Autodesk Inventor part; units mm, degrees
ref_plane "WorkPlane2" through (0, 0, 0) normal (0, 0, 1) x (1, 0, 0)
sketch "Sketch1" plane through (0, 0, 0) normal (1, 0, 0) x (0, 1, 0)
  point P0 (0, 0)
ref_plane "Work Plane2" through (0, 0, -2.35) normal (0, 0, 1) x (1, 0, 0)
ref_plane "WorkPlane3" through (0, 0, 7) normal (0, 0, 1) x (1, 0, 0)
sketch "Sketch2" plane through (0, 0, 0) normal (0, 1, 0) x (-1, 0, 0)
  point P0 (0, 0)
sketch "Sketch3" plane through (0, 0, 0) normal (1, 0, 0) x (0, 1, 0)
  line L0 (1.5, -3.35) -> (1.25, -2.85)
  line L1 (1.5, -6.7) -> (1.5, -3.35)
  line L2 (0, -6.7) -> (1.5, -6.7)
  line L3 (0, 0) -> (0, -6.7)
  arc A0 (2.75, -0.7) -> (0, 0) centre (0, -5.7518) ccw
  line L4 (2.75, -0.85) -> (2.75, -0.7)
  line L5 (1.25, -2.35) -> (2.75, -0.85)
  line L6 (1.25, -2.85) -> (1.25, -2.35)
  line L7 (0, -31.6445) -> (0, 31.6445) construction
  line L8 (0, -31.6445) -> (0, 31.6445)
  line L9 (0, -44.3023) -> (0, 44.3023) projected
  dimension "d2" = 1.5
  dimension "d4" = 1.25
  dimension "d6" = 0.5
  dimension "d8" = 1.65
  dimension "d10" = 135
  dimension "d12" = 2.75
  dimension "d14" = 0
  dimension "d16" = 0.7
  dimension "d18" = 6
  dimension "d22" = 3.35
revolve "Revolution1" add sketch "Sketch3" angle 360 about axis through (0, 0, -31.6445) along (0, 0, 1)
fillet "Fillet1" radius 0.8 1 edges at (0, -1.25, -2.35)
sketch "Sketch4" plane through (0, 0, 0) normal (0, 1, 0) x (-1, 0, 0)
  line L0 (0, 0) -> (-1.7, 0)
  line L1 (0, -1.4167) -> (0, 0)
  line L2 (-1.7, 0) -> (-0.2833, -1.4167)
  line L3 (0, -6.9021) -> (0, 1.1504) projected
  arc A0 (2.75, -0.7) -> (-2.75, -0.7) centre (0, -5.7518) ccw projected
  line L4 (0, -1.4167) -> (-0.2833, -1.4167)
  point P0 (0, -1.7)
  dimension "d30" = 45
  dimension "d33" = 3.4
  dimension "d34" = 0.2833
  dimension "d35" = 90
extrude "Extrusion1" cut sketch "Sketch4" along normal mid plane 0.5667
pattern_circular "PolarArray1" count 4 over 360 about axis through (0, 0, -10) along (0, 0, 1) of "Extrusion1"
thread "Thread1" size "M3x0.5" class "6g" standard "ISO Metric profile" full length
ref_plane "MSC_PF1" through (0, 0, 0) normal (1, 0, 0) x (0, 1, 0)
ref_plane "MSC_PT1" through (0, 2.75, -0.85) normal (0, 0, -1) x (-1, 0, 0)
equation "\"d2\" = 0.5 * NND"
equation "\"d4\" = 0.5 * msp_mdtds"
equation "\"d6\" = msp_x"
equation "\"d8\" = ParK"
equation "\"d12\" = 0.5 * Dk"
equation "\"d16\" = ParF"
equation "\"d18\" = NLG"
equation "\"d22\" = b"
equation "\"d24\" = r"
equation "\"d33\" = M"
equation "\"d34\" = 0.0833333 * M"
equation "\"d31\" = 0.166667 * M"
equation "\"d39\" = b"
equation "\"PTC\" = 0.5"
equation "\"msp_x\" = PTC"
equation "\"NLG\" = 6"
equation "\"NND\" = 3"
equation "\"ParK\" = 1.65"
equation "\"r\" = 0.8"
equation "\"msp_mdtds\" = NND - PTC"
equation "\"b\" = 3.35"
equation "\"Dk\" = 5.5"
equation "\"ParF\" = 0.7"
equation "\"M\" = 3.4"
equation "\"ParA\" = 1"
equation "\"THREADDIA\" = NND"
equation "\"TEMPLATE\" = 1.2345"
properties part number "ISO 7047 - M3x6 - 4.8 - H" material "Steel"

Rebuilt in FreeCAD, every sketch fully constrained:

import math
import FreeCAD as App
import Part
import Sketcher
Q = App.Units.Quantity


def edges_at(feature, points):
    """Names of the edges that pass closest to the given points."""
    edges = feature.Shape.Edges
    near = lambda p: min(range(len(edges)), key=lambda i: edges[i].distToShape(Part.Vertex(*p))[0])
    return sorted({f"Edge{near(p) + 1}" for p in points})

doc = App.newDocument("Part")
body = doc.addObject("PartDesign::Body", "Body")

sketch1 = doc.addObject("Sketcher::SketchObject", "Sketch")
body.addObject(sketch1)
sketch1.AttachmentSupport = (doc.YZ_Plane, [""])
sketch1.MapMode = "FlatFace"
sketch1.addGeometry(Part.LineSegment(App.Vector(1.5, -6.7, 0), App.Vector(1.5, -3.35, 0)), False)
sketch1.addGeometry(Part.LineSegment(App.Vector(1.5, -3.35, 0), App.Vector(1.25, -2.85, 0)), False)
sketch1.addGeometry(Part.LineSegment(App.Vector(1.25, -2.85, 0), App.Vector(1.25, -2.35, 0)), False)
sketch1.addGeometry(Part.LineSegment(App.Vector(1.25, -2.35, 0), App.Vector(2.75, -0.85, 0)), False)
sketch1.addGeometry(Part.LineSegment(App.Vector(2.75, -0.85, 0), App.Vector(2.75, -0.7, 0)), False)
sketch1.addGeometry(Part.ArcOfCircle(Part.Circle(App.Vector(0, -5.7518, 0), App.Vector(0, 0, 1), 5.751798), math.radians(61.437877), math.radians(90)), False)
sketch1.addGeometry(Part.LineSegment(App.Vector(0, 0, 0), App.Vector(0, -6.7, 0)), False)
sketch1.addGeometry(Part.LineSegment(App.Vector(0, -6.7, 0), App.Vector(1.5, -6.7, 0)), False)
sketch1.addConstraint(Sketcher.Constraint("Coincident", 0, 2, 1, 1))
sketch1.addConstraint(Sketcher.Constraint("Coincident", 1, 2, 2, 1))
sketch1.addConstraint(Sketcher.Constraint("Coincident", 2, 2, 3, 1))
sketch1.addConstraint(Sketcher.Constraint("Coincident", 3, 2, 4, 1))
sketch1.addConstraint(Sketcher.Constraint("Coincident", 4, 2, 5, 1))
sketch1.addConstraint(Sketcher.Constraint("Coincident", 5, 2, 6, 1))
sketch1.addConstraint(Sketcher.Constraint("Coincident", 6, 2, 7, 1))
sketch1.addConstraint(Sketcher.Constraint("Coincident", 7, 2, 0, 1))
sketch1.addConstraint(Sketcher.Constraint("Vertical", 0))
sketch1.addConstraint(Sketcher.Constraint("Vertical", 2))
sketch1.addConstraint(Sketcher.Constraint("Vertical", 4))
sketch1.addConstraint(Sketcher.Constraint("Vertical", 6))
sketch1.addConstraint(Sketcher.Constraint("Horizontal", 7))
sketch1.addConstraint(Sketcher.Constraint("Coincident", 5, 2, -1, 1))
sketch1.addConstraint(Sketcher.Constraint("PointOnObject", 5, 3, -2))
sketch1.addConstraint(Sketcher.Constraint("DistanceX", 7, 1, 7, 2, Q("1.5 mm")))
sketch1.addConstraint(Sketcher.Constraint("DistanceY", 2, 1, 2, 2, Q("0.5 mm")))
sketch1.addConstraint(Sketcher.Constraint("DistanceY", 0, 1, 0, 2, Q("3.35 mm")))
sketch1.addConstraint(Sketcher.Constraint("DistanceY", 4, 2, -1, 1, Q("0.7 mm")))
sketch1.addConstraint(Sketcher.Constraint("DistanceY", 0, 2, 1, 2, Q("0.5 mm")))
sketch1.addConstraint(Sketcher.Constraint("DistanceX", 2, 2, 3, 2, Q("1.5 mm")))
sketch1.addConstraint(Sketcher.Constraint("DistanceY", 2, 2, 3, 2, Q("1.5 mm")))
sketch1.addConstraint(Sketcher.Constraint("DistanceY", 0, 2, -1, 1, Q("3.35 mm")))
sketch1.addConstraint(Sketcher.Constraint("DistanceX", -1, 1, 1, 2, Q("1.25 mm")))
revolution = doc.addObject("PartDesign::Revolution", "Revolution")
body.addObject(revolution)
revolution.Profile = sketch1
revolution.ReferenceAxis = (sketch1, ["V_Axis"])
revolution.Angle = 360
doc.recompute()

fillet = doc.addObject("PartDesign::Fillet", "Fillet")
body.addObject(fillet)
fillet.Base = (revolution, edges_at(revolution, [(0, -1.25, -2.35)]))
fillet.Radius = 0.8

sketch2 = doc.addObject("Sketcher::SketchObject", "Sketch001")
body.addObject(sketch2)
sketch2.AttachmentSupport = (doc.XZ_Plane, [""])
sketch2.MapMode = "FlatFace"
sketch2.addGeometry(Part.LineSegment(App.Vector(1.7, 0, 0), App.Vector(0.2833, -1.4167, 0)), False)
sketch2.addGeometry(Part.LineSegment(App.Vector(0.2833, -1.4167, 0), App.Vector(0, -1.4167, 0)), False)
sketch2.addGeometry(Part.LineSegment(App.Vector(0, -1.4167, 0), App.Vector(0, 0, 0)), False)
sketch2.addGeometry(Part.LineSegment(App.Vector(0, 0, 0), App.Vector(1.7, 0, 0)), False)
sketch2.addConstraint(Sketcher.Constraint("Coincident", 0, 2, 1, 1))
sketch2.addConstraint(Sketcher.Constraint("Coincident", 1, 2, 2, 1))
sketch2.addConstraint(Sketcher.Constraint("Coincident", 2, 2, 3, 1))
sketch2.addConstraint(Sketcher.Constraint("Coincident", 3, 2, 0, 1))
sketch2.addConstraint(Sketcher.Constraint("Horizontal", 1))
sketch2.addConstraint(Sketcher.Constraint("Vertical", 2))
sketch2.addConstraint(Sketcher.Constraint("Horizontal", 3))
sketch2.addConstraint(Sketcher.Constraint("Coincident", 2, 2, -1, 1))
sketch2.addConstraint(Sketcher.Constraint("Angle", 0, Q("-135 deg")))
sketch2.addConstraint(Sketcher.Constraint("DistanceX", 1, 2, 1, 1, Q("0.2833 mm")))
sketch2.addConstraint(Sketcher.Constraint("DistanceX", 3, 1, 3, 2, Q("1.7 mm")))
pocket1 = doc.addObject("PartDesign::Pocket", "Pocket")
body.addObject(pocket1)
pocket1.Profile = sketch2
pocket1.Length = 0.5667
pocket1.Midplane = True
doc.recompute()

polarpattern = doc.addObject("PartDesign::PolarPattern", "PolarPattern")
body.addObject(polarpattern)
polarpattern.Originals = [pocket1]
polarpattern.Axis = (doc.Z_Axis, [""])
polarpattern.Angle = 360
polarpattern.Occurrences = 4
body.Tip = polarpattern

doc.recompute()
